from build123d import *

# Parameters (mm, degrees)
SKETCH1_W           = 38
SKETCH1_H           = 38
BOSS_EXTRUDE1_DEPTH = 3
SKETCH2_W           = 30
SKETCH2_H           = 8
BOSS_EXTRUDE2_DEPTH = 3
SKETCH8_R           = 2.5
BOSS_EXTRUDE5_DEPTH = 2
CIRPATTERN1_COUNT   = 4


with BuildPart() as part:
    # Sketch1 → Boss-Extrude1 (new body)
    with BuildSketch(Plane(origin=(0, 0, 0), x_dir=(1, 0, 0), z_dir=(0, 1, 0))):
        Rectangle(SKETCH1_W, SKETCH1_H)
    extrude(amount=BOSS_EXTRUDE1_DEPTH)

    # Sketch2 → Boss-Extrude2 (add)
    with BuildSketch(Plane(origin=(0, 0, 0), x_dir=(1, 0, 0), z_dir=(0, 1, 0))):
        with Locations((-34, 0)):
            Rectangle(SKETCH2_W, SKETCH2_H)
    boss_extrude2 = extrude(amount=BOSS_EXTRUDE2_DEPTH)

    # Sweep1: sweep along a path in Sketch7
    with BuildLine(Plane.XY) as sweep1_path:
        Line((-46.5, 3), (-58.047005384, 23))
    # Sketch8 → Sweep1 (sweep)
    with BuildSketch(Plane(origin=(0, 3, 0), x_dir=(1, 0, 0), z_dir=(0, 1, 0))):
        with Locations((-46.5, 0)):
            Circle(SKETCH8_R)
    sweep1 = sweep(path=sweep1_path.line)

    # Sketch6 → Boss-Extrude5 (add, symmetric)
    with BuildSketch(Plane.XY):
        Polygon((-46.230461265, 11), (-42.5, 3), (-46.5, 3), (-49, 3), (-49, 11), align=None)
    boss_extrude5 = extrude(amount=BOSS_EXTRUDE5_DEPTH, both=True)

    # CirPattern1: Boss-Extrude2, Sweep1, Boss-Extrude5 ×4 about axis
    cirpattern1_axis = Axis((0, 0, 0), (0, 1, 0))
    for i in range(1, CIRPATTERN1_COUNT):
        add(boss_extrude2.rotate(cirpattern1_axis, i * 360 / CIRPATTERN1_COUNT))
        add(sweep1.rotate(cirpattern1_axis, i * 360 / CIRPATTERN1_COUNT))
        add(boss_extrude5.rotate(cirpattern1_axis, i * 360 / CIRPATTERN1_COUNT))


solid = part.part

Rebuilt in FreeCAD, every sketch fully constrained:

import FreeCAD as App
import Part
import Sketcher

V = App.Vector
Q = App.Units.Quantity


def add_polygon(sketch, points):
    """Adds a closed chain of lines whose ends are joined by coincident constraints."""
    first, n = sketch.GeometryCount, len(points)
    for a, b in zip(points, points[1:] + points[:1]):
        sketch.addGeometry(Part.LineSegment(App.Vector(*a, 0), App.Vector(*b, 0)), False)
    for i in range(n):
        sketch.addConstraint(Sketcher.Constraint("Coincident", first + i, 2, first + (i + 1) % n, 1))

doc = App.newDocument("Part")
body = doc.addObject("PartDesign::Body", "Body")

sketch1 = body.newObject("Sketcher::SketchObject", "Sketch")
sketch1.AttachmentSupport = (doc.getObject("XZ_Plane"), [""])
sketch1.MapMode = "FlatFace"
add_polygon(sketch1, [(-19, -19), (-19, 19), (19, 19), (19, -19)])
sketch1.addConstraint([
    Sketcher.Constraint("Vertical", 0),
    Sketcher.Constraint("Horizontal", 1),
    Sketcher.Constraint("Vertical", 2),
    Sketcher.Constraint("Horizontal", 3),
    Sketcher.Constraint("Symmetric", 0, 2, 2, 2, -1, 1),
    Sketcher.Constraint("Equal", 3, 0),
    Sketcher.Constraint("DistanceX", 1, 1, 1, 2, Q("38 mm")),
])
pad1 = body.newObject("PartDesign::Pad", "Pad")
pad1.Profile = sketch1
pad1.Length = 3
pad1.Reversed = True

sketch2 = body.newObject("Sketcher::SketchObject", "Sketch001")
sketch2.AttachmentSupport = (doc.getObject("XZ_Plane"), [""])
sketch2.MapMode = "FlatFace"
add_polygon(sketch2, [(-49, -4), (-49, 4), (-19, 4), (-19, -4)])
sketch2.addConstraint([
    Sketcher.Constraint("Vertical", 0),
    Sketcher.Constraint("Horizontal", 1),
    Sketcher.Constraint("Vertical", 2),
    Sketcher.Constraint("Horizontal", 3),
    Sketcher.Constraint("DistanceX", 1, 1, 1, 2, Q("30 mm")),
    Sketcher.Constraint("DistanceY", 0, 1, 0, 2, Q("8 mm")),
    Sketcher.Constraint("DistanceX", 0, 2, -1, 1, Q("49 mm")),
    Sketcher.Constraint("DistanceY", -1, 1, 0, 2, Q("4 mm")),
])
pad2 = body.newObject("PartDesign::Pad", "Pad001")
pad2.Profile = sketch2
pad2.Length = 3
pad2.Reversed = True

sketch3 = body.newObject("Sketcher::SketchObject", "Sketch002")
sketch3.AttachmentSupport = (doc.getObject("XZ_Plane"), [""])
sketch3.MapMode = "FlatFace"
sketch3.AttachmentOffset = App.Placement(V(0, 0, -3), App.Rotation())
sketch3.addGeometry(Part.Circle(V(-46.5, 0, 0), V(0, 0, 1), 2.5), False)
sketch3.addConstraint([
    Sketcher.Constraint("PointOnObject", 0, 3, -1),
    Sketcher.Constraint("Diameter", 0, Q("5 mm")),
    Sketcher.Constraint("DistanceX", 0, 3, -1, 1, Q("46.5 mm")),
])

sketch4 = body.newObject("Sketcher::SketchObject", "Sketch003")
sketch4.Placement = App.Placement(V(-33.575962, -19.385091, 0), App.Rotation(V(-0.5, 0.866025404, 0), V(0, 0, 1), V(0.866025404, 0.5, 0), "ZXY"))
sketch4.addGeometry(Part.LineSegment(V(26, 0, 0), V(49, 0, 0)), False)
sketch4.addConstraint([
    Sketcher.Constraint("Horizontal", 0),
    Sketcher.Constraint("PointOnObject", 0, 1, -1),
    Sketcher.Constraint("DistanceX", 0, 1, 0, 2, Q("23.094011 mm")),
    Sketcher.Constraint("DistanceX", -1, 1, 0, 1, Q("25.848076 mm")),
])
doc.recompute()

additivepipe = body.newObject("PartDesign::AdditivePipe", "AdditivePipe")
additivepipe.Profile = sketch3
additivepipe.Spine = (sketch4, ["Edge1"])

sketch5 = body.newObject("Sketcher::SketchObject", "Sketch004")
sketch5.AttachmentSupport = (doc.getObject("XY_Plane"), [""])
sketch5.MapMode = "FlatFace"
add_polygon(sketch5, [(-42.5, 3), (-46.2, 11), (-49, 11), (-49, 3)])
sketch5.addConstraint([
    Sketcher.Constraint("Horizontal", 1),
    Sketcher.Constraint("Vertical", 2),
    Sketcher.Constraint("Horizontal", 3),
    Sketcher.Constraint("DistanceY", 2, 2, 2, 1, Q("8 mm")),
    Sketcher.Constraint("Angle", 0, Q("115 deg")),
    Sketcher.Constraint("DistanceX", 3, 1, 3, 2, Q("6.5 mm")),
    Sketcher.Constraint("DistanceY", -1, 1, 0, 2, Q("11 mm")),
    Sketcher.Constraint("DistanceX", 1, 2, -1, 1, Q("49 mm")),
])
pad3 = body.newObject("PartDesign::Pad", "Pad002")
pad3.Profile = sketch5
pad3.Length = 4
pad3.Midplane = True
doc.recompute()

polarpattern = body.newObject("PartDesign::PolarPattern", "PolarPattern")
polarpattern.Originals = [pad2, additivepipe, pad3]
polarpattern.Axis = (doc.getObject("Y_Axis"), [""])
polarpattern.Angle = 360
polarpattern.Occurrences = 4
body.Tip = polarpattern

doc.recompute()
